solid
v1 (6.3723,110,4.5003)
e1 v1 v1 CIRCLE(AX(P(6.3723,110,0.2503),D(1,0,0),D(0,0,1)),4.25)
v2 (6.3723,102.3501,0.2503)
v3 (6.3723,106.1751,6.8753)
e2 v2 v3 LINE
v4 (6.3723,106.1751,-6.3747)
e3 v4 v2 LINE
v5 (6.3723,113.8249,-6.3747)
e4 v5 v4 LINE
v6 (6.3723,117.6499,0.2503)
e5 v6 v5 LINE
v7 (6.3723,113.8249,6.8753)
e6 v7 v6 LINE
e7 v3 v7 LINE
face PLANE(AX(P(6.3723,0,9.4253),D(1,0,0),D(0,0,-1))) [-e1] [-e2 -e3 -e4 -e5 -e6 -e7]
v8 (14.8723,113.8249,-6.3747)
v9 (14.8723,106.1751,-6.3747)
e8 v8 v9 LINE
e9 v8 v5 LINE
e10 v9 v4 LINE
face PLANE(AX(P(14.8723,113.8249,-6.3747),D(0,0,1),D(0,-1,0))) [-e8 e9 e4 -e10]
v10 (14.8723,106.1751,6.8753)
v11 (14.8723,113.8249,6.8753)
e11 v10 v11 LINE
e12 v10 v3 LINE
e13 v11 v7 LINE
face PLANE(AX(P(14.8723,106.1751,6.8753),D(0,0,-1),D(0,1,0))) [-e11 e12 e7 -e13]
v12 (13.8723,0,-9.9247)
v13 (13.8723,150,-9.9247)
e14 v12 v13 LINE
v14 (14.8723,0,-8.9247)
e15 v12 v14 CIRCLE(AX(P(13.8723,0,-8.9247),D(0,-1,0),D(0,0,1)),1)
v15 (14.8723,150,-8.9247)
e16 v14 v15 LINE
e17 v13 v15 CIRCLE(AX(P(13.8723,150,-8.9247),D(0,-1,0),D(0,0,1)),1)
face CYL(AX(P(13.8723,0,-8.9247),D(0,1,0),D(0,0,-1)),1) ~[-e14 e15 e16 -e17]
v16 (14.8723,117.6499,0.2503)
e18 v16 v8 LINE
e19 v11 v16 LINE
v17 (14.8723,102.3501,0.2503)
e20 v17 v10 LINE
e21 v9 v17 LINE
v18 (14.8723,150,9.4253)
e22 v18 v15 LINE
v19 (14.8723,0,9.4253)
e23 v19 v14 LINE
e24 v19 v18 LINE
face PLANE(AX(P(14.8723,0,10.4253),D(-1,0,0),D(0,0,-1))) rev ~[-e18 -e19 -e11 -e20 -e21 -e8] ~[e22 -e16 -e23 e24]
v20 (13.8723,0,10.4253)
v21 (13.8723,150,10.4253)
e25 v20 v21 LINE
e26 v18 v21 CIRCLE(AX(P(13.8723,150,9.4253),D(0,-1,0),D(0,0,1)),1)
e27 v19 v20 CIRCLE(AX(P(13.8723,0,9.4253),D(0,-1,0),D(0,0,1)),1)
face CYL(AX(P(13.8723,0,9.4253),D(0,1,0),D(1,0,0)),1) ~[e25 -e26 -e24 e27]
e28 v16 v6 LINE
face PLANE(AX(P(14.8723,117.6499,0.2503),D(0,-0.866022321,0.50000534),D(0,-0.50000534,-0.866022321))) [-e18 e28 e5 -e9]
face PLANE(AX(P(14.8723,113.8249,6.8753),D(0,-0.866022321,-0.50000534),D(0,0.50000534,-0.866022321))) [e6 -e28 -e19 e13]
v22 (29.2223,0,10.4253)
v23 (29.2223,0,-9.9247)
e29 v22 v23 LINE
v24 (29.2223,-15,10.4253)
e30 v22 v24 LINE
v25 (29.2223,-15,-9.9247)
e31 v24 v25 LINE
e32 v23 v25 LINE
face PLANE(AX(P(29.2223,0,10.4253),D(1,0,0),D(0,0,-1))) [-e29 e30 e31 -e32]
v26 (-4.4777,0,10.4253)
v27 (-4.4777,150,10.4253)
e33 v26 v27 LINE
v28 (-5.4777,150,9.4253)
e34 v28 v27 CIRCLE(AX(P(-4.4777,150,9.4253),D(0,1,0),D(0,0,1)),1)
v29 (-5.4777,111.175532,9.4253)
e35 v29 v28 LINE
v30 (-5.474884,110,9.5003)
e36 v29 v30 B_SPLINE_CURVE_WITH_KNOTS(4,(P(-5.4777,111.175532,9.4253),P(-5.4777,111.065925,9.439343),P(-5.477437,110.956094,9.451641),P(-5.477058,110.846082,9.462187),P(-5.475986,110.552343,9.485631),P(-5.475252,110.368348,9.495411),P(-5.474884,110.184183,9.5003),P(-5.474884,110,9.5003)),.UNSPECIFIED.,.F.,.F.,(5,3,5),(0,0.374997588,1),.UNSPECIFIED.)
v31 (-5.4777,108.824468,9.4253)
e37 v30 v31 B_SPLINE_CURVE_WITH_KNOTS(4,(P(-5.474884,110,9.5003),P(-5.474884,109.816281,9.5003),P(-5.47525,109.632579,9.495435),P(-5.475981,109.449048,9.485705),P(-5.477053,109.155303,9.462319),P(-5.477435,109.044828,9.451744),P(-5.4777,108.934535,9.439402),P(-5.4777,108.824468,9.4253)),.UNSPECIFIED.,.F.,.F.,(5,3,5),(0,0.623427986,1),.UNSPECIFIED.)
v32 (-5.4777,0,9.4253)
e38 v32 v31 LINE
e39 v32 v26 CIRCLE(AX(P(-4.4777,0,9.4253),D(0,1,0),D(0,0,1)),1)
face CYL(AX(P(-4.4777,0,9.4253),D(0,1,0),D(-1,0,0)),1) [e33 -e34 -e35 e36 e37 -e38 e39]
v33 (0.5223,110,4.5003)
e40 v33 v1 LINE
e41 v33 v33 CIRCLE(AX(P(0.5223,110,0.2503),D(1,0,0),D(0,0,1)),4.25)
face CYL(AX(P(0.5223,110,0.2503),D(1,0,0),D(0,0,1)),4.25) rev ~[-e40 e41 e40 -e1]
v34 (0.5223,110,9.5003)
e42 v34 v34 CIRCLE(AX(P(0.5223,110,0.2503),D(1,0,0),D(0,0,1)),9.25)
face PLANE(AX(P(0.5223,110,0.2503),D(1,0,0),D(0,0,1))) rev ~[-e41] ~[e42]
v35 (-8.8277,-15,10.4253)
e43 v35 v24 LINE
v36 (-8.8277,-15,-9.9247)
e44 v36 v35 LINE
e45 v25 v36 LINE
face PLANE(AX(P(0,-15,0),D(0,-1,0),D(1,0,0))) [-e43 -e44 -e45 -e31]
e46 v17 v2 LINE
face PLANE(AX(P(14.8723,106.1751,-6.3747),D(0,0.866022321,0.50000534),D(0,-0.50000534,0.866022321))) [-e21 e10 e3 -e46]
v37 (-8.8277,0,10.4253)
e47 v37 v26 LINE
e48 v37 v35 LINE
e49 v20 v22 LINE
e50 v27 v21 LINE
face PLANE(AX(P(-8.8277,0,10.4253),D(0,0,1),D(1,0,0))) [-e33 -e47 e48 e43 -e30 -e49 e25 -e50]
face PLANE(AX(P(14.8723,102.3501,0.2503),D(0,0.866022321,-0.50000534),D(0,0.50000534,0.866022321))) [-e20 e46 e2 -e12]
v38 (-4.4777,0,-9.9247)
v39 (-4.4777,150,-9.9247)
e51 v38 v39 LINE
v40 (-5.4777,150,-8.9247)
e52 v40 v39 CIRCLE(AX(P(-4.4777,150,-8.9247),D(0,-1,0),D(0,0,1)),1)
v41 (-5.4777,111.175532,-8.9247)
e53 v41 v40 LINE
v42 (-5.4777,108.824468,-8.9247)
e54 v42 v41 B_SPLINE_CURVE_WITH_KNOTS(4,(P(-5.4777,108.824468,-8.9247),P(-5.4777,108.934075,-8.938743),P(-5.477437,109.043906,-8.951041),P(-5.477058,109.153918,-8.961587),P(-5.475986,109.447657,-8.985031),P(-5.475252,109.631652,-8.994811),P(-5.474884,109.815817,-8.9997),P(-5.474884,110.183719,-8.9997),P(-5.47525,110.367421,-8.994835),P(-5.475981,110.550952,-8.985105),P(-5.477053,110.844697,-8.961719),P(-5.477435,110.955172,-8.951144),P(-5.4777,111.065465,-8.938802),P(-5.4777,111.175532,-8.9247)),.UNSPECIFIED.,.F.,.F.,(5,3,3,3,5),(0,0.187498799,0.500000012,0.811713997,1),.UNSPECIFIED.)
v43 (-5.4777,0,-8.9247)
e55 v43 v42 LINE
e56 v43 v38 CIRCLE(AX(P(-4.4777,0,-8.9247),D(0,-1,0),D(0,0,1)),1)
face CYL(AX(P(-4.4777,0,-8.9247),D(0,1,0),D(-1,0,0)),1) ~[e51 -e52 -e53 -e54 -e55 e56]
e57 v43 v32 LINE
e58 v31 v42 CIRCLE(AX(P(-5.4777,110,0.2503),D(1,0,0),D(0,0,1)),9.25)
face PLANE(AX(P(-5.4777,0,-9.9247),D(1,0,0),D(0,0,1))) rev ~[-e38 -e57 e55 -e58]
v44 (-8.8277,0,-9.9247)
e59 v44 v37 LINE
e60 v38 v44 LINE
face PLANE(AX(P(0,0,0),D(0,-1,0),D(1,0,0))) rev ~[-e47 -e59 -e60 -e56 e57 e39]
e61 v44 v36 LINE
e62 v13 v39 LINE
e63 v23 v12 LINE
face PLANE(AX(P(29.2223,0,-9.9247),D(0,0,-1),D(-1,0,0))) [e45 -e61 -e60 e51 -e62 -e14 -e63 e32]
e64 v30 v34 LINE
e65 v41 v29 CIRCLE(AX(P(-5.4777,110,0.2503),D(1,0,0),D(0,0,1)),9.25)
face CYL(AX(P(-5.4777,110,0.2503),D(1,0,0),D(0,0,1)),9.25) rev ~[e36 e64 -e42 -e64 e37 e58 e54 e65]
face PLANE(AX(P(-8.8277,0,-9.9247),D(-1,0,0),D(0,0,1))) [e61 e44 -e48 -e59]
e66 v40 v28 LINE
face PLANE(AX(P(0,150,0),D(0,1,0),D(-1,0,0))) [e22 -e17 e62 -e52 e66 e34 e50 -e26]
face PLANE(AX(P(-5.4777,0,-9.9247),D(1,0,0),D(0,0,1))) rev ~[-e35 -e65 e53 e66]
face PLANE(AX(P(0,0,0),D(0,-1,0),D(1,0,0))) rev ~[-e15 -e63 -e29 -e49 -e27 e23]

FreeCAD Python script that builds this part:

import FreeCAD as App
import Part
import Sketcher

V = App.Vector
Q = App.Units.Quantity


def edges_at(feature, points):
    """Names of the edges that pass closest to the given points."""
    edges = feature.Shape.Edges
    near = lambda p: min(range(len(edges)), key=lambda i: edges[i].distToShape(Part.Vertex(*p))[0])
    return sorted({f"Edge{near(p) + 1}" for p in points})


def add_polygon(sketch, points):
    """Adds a closed chain of lines whose ends are joined by coincident constraints."""
    first, n = sketch.GeometryCount, len(points)
    for a, b in zip(points, points[1:] + points[:1]):
        sketch.addGeometry(Part.LineSegment(App.Vector(*a, 0), App.Vector(*b, 0)), False)
    for i in range(n):
        sketch.addConstraint(Sketcher.Constraint("Coincident", first + i, 2, first + (i + 1) % n, 1))

doc = App.newDocument("Part")
body = doc.addObject("PartDesign::Body", "Body")

sketch1 = doc.addObject("Sketcher::SketchObject", "Sketch")
body.addObject(sketch1)
sketch1.AttachmentSupport = (doc.XZ_Plane, [""])
sketch1.MapMode = "FlatFace"
add_polygon(sketch1, [(-5, -10), (-5, 10), (15, 10), (15, -10)])
sketch1.addConstraint(Sketcher.Constraint("Vertical", 0))
sketch1.addConstraint(Sketcher.Constraint("Horizontal", 1))
sketch1.addConstraint(Sketcher.Constraint("Vertical", 2))
sketch1.addConstraint(Sketcher.Constraint("Horizontal", 3))
sketch1.addConstraint(Sketcher.Constraint("Equal", 3, 0))
sketch1.addConstraint(Sketcher.Constraint("DistanceX", 1, 1, 1, 2, Q("20.35 mm")))
sketch1.addConstraint(Sketcher.Constraint("DistanceX", 0, 2, -1, 1, Q("5.4777 mm")))
sketch1.addConstraint(Sketcher.Constraint("DistanceY", -1, 1, 0, 2, Q("10.4253 mm")))
pad1 = doc.addObject("PartDesign::Pad", "Pad")
body.addObject(pad1)
pad1.Profile = sketch1
pad1.Length = 150
pad1.Reversed = True
doc.recompute()

fillet = doc.addObject("PartDesign::Fillet", "Fillet")
body.addObject(fillet)
fillet.Base = (pad1, edges_at(pad1, [
    (14.872, 75, 10.425),
    (14.872, 75, -9.925),
    (-5.478, 75, 10.425),
    (-5.478, 75, -9.925),
]))
fillet.Radius = 1

sketch2 = doc.addObject("Sketcher::SketchObject", "Sketch001")
body.addObject(sketch2)
sketch2.AttachmentSupport = (doc.YZ_Plane, [""])
sketch2.MapMode = "FlatFace"
sketch2.AttachmentOffset = App.Placement(V(0, 0, 14.8723), App.Rotation())
add_polygon(sketch2, [(106, 7), (102, 0), (106, -6), (114, -6), (118, 0), (114, 7)])
sketch2.addConstraint(Sketcher.Constraint("Horizontal", 2))
sketch2.addConstraint(Sketcher.Constraint("Horizontal", 5))
sketch2.addConstraint(Sketcher.Constraint("Parallel", 0, 3))
sketch2.addConstraint(Sketcher.Constraint("Parallel", 1, 4))
sketch2.addConstraint(Sketcher.Constraint("Horizontal", 0, 2, 3, 2))
sketch2.addConstraint(Sketcher.Constraint("Vertical", 2, 2, 4, 2))
sketch2.addConstraint(Sketcher.Constraint("Vertical", 1, 2, 5, 2))
sketch2.addConstraint(Sketcher.Constraint("Angle", 0, Q("-120.0004 deg")))
sketch2.addConstraint(Sketcher.Constraint("DistanceY", 2, 2, 4, 2, Q("13.25 mm")))
sketch2.addConstraint(Sketcher.Constraint("DistanceX", -1, 1, 0, 2, Q("102.35 mm")))
sketch2.addConstraint(Sketcher.Constraint("DistanceX", -1, 1, 3, 2, Q("117.65 mm")))
sketch2.addConstraint(Sketcher.Constraint("DistanceY", -1, 1, 0, 2, Q("0.2503 mm")))
pocket1 = doc.addObject("PartDesign::Pocket", "Pocket")
body.addObject(pocket1)
pocket1.Profile = sketch2
pocket1.Length = 8.5

sketch3 = doc.addObject("Sketcher::SketchObject", "Sketch002")
body.addObject(sketch3)
sketch3.AttachmentSupport = (doc.YZ_Plane, [""])
sketch3.MapMode = "FlatFace"
sketch3.AttachmentOffset = App.Placement(V(0, 0, -5.4777), App.Rotation())
sketch3.addGeometry(Part.Circle(V(110, 0.3, 0), V(0, 0, 1), 4.2), False)
sketch3.addConstraint(Sketcher.Constraint("Diameter", 0, Q("8.5 mm")))
sketch3.addConstraint(Sketcher.Constraint("DistanceX", -1, 1, 0, 3, Q("110 mm")))
sketch3.addConstraint(Sketcher.Constraint("DistanceY", -1, 1, 0, 3, Q("0.2503 mm")))
doc.recompute()
hole = doc.addObject("PartDesign::Hole", "Hole")
body.addObject(hole)
hole.Profile = sketch3
hole.ThreadType = "None"
hole.Diameter = 8.5
hole.DepthType = "Dimension"
hole.Depth = 40
hole.DrillPoint = "Flat"
hole.HoleCutType = "Counterbore"
hole.HoleCutDiameter = 18.5
hole.HoleCutDepth = 6
hole.Reversed = True

sketch4 = doc.addObject("Sketcher::SketchObject", "Sketch003")
body.addObject(sketch4)
sketch4.AttachmentSupport = (doc.XZ_Plane, [""])
sketch4.MapMode = "FlatFace"
add_polygon(sketch4, [(-9, -10), (29, -10), (29, 10), (-9, 10)])
sketch4.addConstraint(Sketcher.Constraint("Horizontal", 0))
sketch4.addConstraint(Sketcher.Constraint("Vertical", 1))
sketch4.addConstraint(Sketcher.Constraint("Horizontal", 2))
sketch4.addConstraint(Sketcher.Constraint("Vertical", 3))
sketch4.addConstraint(Sketcher.Constraint("DistanceY", 1, 1, 1, 2, Q("20.35 mm")))
sketch4.addConstraint(Sketcher.Constraint("DistanceX", 0, 1, 0, 2, Q("38.05 mm")))
sketch4.addConstraint(Sketcher.Constraint("DistanceX", -1, 1, 0, 2, Q("29.2223 mm")))
sketch4.addConstraint(Sketcher.Constraint("DistanceY", 0, 2, -1, 1, Q("9.9247 mm")))
pad2 = doc.addObject("PartDesign::Pad", "Pad001")
body.addObject(pad2)
pad2.Profile = sketch4
pad2.Length = 15

doc.recompute()
